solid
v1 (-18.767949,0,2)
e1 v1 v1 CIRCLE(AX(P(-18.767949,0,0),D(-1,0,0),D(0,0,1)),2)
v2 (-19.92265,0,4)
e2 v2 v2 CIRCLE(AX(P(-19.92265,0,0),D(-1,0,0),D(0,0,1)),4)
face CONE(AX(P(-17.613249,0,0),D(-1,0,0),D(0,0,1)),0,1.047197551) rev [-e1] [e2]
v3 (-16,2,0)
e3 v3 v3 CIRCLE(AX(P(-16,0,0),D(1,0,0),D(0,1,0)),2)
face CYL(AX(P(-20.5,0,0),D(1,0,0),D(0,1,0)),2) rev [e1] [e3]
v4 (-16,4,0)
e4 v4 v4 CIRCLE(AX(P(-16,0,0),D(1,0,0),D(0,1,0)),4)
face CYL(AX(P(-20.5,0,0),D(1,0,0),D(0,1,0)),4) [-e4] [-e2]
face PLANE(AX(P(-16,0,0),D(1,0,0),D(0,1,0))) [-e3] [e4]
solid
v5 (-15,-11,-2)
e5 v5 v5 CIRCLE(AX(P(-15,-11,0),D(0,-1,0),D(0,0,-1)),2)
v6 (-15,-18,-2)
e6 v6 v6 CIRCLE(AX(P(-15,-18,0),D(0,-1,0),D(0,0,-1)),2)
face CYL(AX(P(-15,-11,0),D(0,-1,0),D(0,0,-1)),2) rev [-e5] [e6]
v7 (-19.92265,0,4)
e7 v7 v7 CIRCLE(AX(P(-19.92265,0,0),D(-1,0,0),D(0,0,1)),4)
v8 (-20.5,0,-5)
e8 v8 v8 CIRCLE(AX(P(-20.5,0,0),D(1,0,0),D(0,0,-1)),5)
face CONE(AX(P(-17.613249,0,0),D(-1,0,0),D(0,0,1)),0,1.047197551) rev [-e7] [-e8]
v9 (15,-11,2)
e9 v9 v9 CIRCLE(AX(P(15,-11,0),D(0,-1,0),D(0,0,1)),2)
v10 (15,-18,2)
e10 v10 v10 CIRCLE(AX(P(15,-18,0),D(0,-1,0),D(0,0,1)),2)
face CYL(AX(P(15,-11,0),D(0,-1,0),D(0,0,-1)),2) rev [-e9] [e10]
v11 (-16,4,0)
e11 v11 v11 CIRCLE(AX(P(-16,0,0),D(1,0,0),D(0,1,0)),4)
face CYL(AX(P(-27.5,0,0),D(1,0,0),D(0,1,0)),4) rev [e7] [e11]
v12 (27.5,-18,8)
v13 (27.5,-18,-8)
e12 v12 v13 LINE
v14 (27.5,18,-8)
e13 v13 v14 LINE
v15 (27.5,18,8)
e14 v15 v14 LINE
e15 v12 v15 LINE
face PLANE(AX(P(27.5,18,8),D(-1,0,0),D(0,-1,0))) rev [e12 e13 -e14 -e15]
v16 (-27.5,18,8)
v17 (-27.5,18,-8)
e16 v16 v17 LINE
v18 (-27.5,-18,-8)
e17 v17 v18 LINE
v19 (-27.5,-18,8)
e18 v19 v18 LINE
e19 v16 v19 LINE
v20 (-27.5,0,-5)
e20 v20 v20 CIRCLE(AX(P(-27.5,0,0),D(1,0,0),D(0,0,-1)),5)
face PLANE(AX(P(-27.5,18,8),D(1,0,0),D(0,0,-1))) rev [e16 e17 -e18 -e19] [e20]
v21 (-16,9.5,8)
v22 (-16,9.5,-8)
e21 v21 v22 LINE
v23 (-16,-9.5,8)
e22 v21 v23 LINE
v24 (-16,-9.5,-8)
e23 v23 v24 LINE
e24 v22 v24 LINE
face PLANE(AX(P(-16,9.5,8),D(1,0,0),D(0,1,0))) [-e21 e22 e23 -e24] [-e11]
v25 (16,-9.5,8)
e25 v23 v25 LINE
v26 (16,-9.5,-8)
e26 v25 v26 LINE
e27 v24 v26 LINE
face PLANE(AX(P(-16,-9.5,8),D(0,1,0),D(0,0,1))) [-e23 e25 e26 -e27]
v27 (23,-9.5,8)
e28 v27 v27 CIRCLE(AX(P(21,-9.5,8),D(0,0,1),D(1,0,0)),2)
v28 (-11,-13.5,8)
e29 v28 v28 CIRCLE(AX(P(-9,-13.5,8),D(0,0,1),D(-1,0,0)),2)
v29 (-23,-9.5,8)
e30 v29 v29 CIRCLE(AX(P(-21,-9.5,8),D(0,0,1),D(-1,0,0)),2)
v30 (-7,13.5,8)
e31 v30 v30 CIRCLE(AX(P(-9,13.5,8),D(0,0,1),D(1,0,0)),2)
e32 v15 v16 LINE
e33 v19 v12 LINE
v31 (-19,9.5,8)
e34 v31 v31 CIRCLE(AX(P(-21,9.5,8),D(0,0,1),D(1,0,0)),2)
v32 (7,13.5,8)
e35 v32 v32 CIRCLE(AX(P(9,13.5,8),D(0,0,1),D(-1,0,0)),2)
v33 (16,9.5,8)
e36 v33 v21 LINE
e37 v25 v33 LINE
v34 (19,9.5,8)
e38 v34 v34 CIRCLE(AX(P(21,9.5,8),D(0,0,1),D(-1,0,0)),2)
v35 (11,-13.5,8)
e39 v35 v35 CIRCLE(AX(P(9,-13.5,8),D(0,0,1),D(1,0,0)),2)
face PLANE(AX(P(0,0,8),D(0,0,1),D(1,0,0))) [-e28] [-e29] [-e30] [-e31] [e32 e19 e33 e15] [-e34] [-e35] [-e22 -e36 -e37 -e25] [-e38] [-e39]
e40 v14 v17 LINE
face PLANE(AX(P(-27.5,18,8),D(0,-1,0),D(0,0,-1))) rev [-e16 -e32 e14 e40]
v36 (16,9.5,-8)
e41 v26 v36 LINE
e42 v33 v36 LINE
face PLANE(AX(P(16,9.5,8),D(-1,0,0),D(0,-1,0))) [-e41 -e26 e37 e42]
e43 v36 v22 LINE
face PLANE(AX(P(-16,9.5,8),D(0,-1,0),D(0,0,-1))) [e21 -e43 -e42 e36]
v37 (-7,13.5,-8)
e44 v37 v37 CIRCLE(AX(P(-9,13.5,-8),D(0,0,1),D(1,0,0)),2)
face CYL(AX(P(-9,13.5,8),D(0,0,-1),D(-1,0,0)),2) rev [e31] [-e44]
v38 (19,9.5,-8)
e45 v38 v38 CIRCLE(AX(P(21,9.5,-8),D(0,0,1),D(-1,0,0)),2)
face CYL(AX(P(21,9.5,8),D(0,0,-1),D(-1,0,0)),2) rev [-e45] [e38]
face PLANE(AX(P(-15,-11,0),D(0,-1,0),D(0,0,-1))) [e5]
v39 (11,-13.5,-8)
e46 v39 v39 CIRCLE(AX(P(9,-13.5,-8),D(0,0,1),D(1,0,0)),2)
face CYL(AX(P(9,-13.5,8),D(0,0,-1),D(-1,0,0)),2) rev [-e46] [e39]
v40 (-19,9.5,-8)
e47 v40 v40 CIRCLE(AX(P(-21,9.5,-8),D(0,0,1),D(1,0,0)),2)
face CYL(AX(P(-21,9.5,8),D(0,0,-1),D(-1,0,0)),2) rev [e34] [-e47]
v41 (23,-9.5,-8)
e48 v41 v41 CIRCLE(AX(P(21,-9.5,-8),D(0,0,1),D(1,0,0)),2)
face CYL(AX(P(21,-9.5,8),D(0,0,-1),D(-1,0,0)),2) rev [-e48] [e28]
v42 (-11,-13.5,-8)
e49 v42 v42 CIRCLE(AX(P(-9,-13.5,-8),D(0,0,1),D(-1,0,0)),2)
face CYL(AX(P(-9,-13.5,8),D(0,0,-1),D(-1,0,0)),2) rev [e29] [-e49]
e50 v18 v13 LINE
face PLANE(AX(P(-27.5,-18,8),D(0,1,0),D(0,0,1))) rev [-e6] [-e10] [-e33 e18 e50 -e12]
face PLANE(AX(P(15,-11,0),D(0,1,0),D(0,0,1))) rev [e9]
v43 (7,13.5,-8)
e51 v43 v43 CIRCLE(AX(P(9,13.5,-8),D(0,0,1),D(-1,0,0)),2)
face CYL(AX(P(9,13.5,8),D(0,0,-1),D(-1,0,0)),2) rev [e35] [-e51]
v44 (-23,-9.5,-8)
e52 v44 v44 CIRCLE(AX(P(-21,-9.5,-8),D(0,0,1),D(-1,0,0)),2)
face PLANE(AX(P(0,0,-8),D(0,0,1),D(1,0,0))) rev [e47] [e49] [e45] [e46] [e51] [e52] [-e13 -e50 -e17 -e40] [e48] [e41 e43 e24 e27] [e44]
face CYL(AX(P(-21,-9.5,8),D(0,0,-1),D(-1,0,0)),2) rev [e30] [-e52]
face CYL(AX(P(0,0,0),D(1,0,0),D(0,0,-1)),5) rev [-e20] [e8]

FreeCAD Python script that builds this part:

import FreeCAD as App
import Part
import Sketcher
Q = App.Units.Quantity

doc = App.newDocument("Part")
body = doc.addObject("PartDesign::Body", "Body")

# Sketch on XY plane
sketch1 = body.newObject("Sketcher::SketchObject", "Sketch")
sketch1.AttachmentSupport = (doc.getObject("XY_Plane"), [""])
sketch1.MapMode = "FlatFace"
sketch1.addGeometry(Part.LineSegment(App.Vector(-27.5, 18, 0), App.Vector(-27.5, -18, 0)), False)
sketch1.addGeometry(Part.LineSegment(App.Vector(-27.5, -18, 0), App.Vector(27.5, -18, 0)), False)
sketch1.addGeometry(Part.LineSegment(App.Vector(27.5, -18, 0), App.Vector(27.5, 18, 0)), False)
sketch1.addGeometry(Part.LineSegment(App.Vector(27.5, 18, 0), App.Vector(-27.5, 18, 0)), False)
sketch1.addGeometry(Part.Circle(App.Vector(-21, -9.5, 0), App.Vector(0, 0, 1), 2), False)
sketch1.addGeometry(Part.Circle(App.Vector(-9, -13.5, 0), App.Vector(0, 0, 1), 2), False)
sketch1.addGeometry(Part.Circle(App.Vector(9, -13.5, 0), App.Vector(0, 0, 1), 2), False)
sketch1.addGeometry(Part.Circle(App.Vector(21, -9.5, 0), App.Vector(0, 0, 1), 2), False)
sketch1.addGeometry(Part.Circle(App.Vector(-21, 9.5, 0), App.Vector(0, 0, 1), 2), False)
sketch1.addGeometry(Part.Circle(App.Vector(-9, 13.5, 0), App.Vector(0, 0, 1), 2), False)
sketch1.addGeometry(Part.LineSegment(App.Vector(16, -9.5, 0), App.Vector(-16, -9.5, 0)), False)
sketch1.addGeometry(Part.LineSegment(App.Vector(-16, -9.5, 0), App.Vector(-16, 9.5, 0)), False)
sketch1.addGeometry(Part.LineSegment(App.Vector(-16, 9.5, 0), App.Vector(16, 9.5, 0)), False)
sketch1.addGeometry(Part.LineSegment(App.Vector(16, 9.5, 0), App.Vector(16, -9.5, 0)), False)
sketch1.addGeometry(Part.Circle(App.Vector(9, 13.5, 0), App.Vector(0, 0, 1), 2), False)
sketch1.addGeometry(Part.Circle(App.Vector(21, 9.5, 0), App.Vector(0, 0, 1), 2), False)
sketch1.addConstraint(Sketcher.Constraint("Coincident", 0, 2, 1, 1))
sketch1.addConstraint(Sketcher.Constraint("Coincident", 1, 2, 2, 1))
sketch1.addConstraint(Sketcher.Constraint("Coincident", 2, 2, 3, 1))
sketch1.addConstraint(Sketcher.Constraint("Coincident", 3, 2, 0, 1))
sketch1.addConstraint(Sketcher.Constraint("Coincident", 10, 2, 11, 1))
sketch1.addConstraint(Sketcher.Constraint("Coincident", 11, 2, 12, 1))
sketch1.addConstraint(Sketcher.Constraint("Coincident", 12, 2, 13, 1))
sketch1.addConstraint(Sketcher.Constraint("Coincident", 13, 2, 10, 1))
sketch1.addConstraint(Sketcher.Constraint("Vertical", 0))
sketch1.addConstraint(Sketcher.Constraint("Horizontal", 1))
sketch1.addConstraint(Sketcher.Constraint("Vertical", 2))
sketch1.addConstraint(Sketcher.Constraint("Horizontal", 3))
sketch1.addConstraint(Sketcher.Constraint("Horizontal", 10))
sketch1.addConstraint(Sketcher.Constraint("Vertical", 11))
sketch1.addConstraint(Sketcher.Constraint("Horizontal", 12))
sketch1.addConstraint(Sketcher.Constraint("Vertical", 13))
sketch1.addConstraint(Sketcher.Constraint("Equal", 4, 5))
sketch1.addConstraint(Sketcher.Constraint("Equal", 5, 6))
sketch1.addConstraint(Sketcher.Constraint("Equal", 6, 7))
sketch1.addConstraint(Sketcher.Constraint("Equal", 7, 8))
sketch1.addConstraint(Sketcher.Constraint("Equal", 8, 9))
sketch1.addConstraint(Sketcher.Constraint("Equal", 9, 14))
sketch1.addConstraint(Sketcher.Constraint("Equal", 14, 15))
sketch1.addConstraint(Sketcher.Constraint("Symmetric", 7, 3, 8, 3, -1, 1))
sketch1.addConstraint(Sketcher.Constraint("Symmetric", 6, 3, 9, 3, -1, 1))
sketch1.addConstraint(Sketcher.Constraint("Symmetric", 5, 3, 14, 3, -1, 1))
sketch1.addConstraint(Sketcher.Constraint("Symmetric", 4, 3, 15, 3, -1, 1))
sketch1.addConstraint(Sketcher.Constraint("Symmetric", 0, 2, 2, 2, -1, 1))
sketch1.addConstraint(Sketcher.Constraint("Symmetric", 10, 2, 12, 2, -1, 1))
sketch1.addConstraint(Sketcher.Constraint("Symmetric", 5, 3, 6, 3, -2))
sketch1.addConstraint(Sketcher.Constraint("Symmetric", 4, 3, 7, 3, -2))
sketch1.addConstraint(Sketcher.Constraint("Horizontal", 7, 3, 10, 2))
sketch1.addConstraint(Sketcher.Constraint("Diameter", 4, 4.0))
sketch1.addConstraint(Sketcher.Constraint("DistanceX", 1, 1, 1, 2, 55.0))
sketch1.addConstraint(Sketcher.Constraint("DistanceX", 10, 2, 10, 1, 32.0))
sketch1.addConstraint(Sketcher.Constraint("DistanceY", 0, 2, 0, 1, 36.0))
sketch1.addConstraint(Sketcher.Constraint("DistanceY", 11, 1, 11, 2, 19.0))
sketch1.addConstraint(Sketcher.Constraint("DistanceX", 4, 3, -1, 1, 21.0))
sketch1.addConstraint(Sketcher.Constraint("DistanceX", 5, 3, -1, 1, 9.0))
sketch1.addConstraint(Sketcher.Constraint("DistanceY", 5, 3, 4, 3, 4.0))
pad1 = body.newObject("PartDesign::Pad", "Pad")
pad1.Profile = sketch1
pad1.Length = 16
pad1.Midplane = True

# Sketch on XZ plane
sketch2 = body.newObject("Sketcher::SketchObject", "Sketch001")
sketch2.AttachmentSupport = (doc.getObject("XZ_Plane"), [""])
sketch2.MapMode = "FlatFace"
sketch2.AttachmentOffset = App.Placement(App.Vector(0, 0, 18), App.Rotation())
sketch2.addGeometry(Part.Circle(App.Vector(-15, 0, 0), App.Vector(0, 0, 1), 2), False)
sketch2.addGeometry(Part.Circle(App.Vector(15, 0, 0), App.Vector(0, 0, 1), 2), False)
sketch2.addConstraint(Sketcher.Constraint("Equal", 0, 1))
sketch2.addConstraint(Sketcher.Constraint("Symmetric", 0, 3, 1, 3, -1, 1))
sketch2.addConstraint(Sketcher.Constraint("PointOnObject", 0, 3, -1))
sketch2.addConstraint(Sketcher.Constraint("Diameter", 0, 4.0))
sketch2.addConstraint(Sketcher.Constraint("DistanceX", 0, 3, -1, 1, 15.0))
pocket1 = body.newObject("PartDesign::Pocket", "Pocket")
pocket1.Profile = sketch2
pocket1.Length = 7

# Sketch on YZ plane
sketch3 = body.newObject("Sketcher::SketchObject", "Sketch002")
sketch3.AttachmentSupport = (doc.getObject("YZ_Plane"), [""])
sketch3.MapMode = "FlatFace"
sketch3.AttachmentOffset = App.Placement(App.Vector(0, 0, -16), App.Rotation())
sketch3.addGeometry(Part.Circle(App.Vector(0, 0, 0), App.Vector(0, 0, 1), 4), False)
sketch3.addConstraint(Sketcher.Constraint("Coincident", 0, 3, -1, 1))
sketch3.addConstraint(Sketcher.Constraint("Diameter", 0, 8.0))
pocket2 = body.newObject("PartDesign::Pocket", "Pocket001")
pocket2.Profile = sketch3
pocket2.Length = 48.751963
body2 = doc.addObject("PartDesign::Body", "Body001")

# Sketch on YZ plane
sketch4 = body2.newObject("Sketcher::SketchObject", "Sketch003")
sketch4.AttachmentSupport = (doc.getObject("YZ_Plane001"), [""])
sketch4.MapMode = "FlatFace"
sketch4.AttachmentOffset = App.Placement(App.Vector(0, 0, -16), App.Rotation())
sketch4.addGeometry(Part.Circle(App.Vector(0, 0, 0), App.Vector(0, 0, 1), 4), False)
sketch4.addGeometry(Part.Circle(App.Vector(0, 0, 0), App.Vector(0, 0, 1), 2), False)
sketch4.addConstraint(Sketcher.Constraint("Coincident", 0, 3, -1, 1))
sketch4.addConstraint(Sketcher.Constraint("Coincident", 1, 3, -1, 1))
sketch4.addConstraint(Sketcher.Constraint("Diameter", 0, 8.0))
sketch4.addConstraint(Sketcher.Constraint("Diameter", 1, 4.0))
pad2 = body2.newObject("PartDesign::Pad", "Pad001")
pad2.Profile = sketch4
pad2.Length = 4.5
pad2.Reversed = True
body3 = doc.addObject("PartDesign::Body", "Body002")

# Sketch on XY plane
sketch5 = body3.newObject("Sketcher::SketchObject", "Sketch004")
sketch5.AttachmentSupport = (doc.getObject("XY_Plane002"), [""])
sketch5.MapMode = "FlatFace"
sketch5.addGeometry(Part.LineSegment(App.Vector(-27.5, 5, 0), App.Vector(-27.5, 0, 0)), False)
sketch5.addGeometry(Part.LineSegment(App.Vector(-27.5, 0, 0), App.Vector(-17.613249, 0, 0)), False)
sketch5.addGeometry(Part.LineSegment(App.Vector(-17.613249, 0, 0), App.Vector(-20.5, 5, 0)), False)
sketch5.addGeometry(Part.LineSegment(App.Vector(-20.5, 5, 0), App.Vector(-27.5, 5, 0)), False)
sketch5.addConstraint(Sketcher.Constraint("Coincident", 0, 2, 1, 1))
sketch5.addConstraint(Sketcher.Constraint("Coincident", 1, 2, 2, 1))
sketch5.addConstraint(Sketcher.Constraint("Coincident", 2, 2, 3, 1))
sketch5.addConstraint(Sketcher.Constraint("Coincident", 3, 2, 0, 1))
sketch5.addConstraint(Sketcher.Constraint("Vertical", 0))
sketch5.addConstraint(Sketcher.Constraint("Horizontal", 1))
sketch5.addConstraint(Sketcher.Constraint("Horizontal", 3))
sketch5.addConstraint(Sketcher.Constraint("PointOnObject", 0, 2, -1))
sketch5.addConstraint(Sketcher.Constraint("DistanceX", 3, 2, 3, 1, 7.0))
sketch5.addConstraint(Sketcher.Constraint("DistanceY", 0, 2, 0, 1, 5.0))
sketch5.addConstraint(Sketcher.Constraint("Angle", 2, Q("120 deg")))
sketch5.addConstraint(Sketcher.Constraint("DistanceX", 0, 2, -1, 1, 27.5))
revolution = body3.newObject("PartDesign::Revolution", "Revolution")
revolution.Profile = sketch5
revolution.ReferenceAxis = (sketch5, ["H_Axis"])
revolution.Angle = 360
doc.recompute()

body4 = doc.addObject("PartDesign::Body", "Body003")
body4.BaseFeature = body3
boolean = body.newObject("PartDesign::Boolean", "Boolean")
boolean.Type = "Cut"
boolean.addObjects([body4])
doc.recompute()

boolean2 = body2.newObject("PartDesign::Boolean", "Boolean001")
boolean2.Type = "Cut"
boolean2.addObjects([body3])

doc.recompute()
